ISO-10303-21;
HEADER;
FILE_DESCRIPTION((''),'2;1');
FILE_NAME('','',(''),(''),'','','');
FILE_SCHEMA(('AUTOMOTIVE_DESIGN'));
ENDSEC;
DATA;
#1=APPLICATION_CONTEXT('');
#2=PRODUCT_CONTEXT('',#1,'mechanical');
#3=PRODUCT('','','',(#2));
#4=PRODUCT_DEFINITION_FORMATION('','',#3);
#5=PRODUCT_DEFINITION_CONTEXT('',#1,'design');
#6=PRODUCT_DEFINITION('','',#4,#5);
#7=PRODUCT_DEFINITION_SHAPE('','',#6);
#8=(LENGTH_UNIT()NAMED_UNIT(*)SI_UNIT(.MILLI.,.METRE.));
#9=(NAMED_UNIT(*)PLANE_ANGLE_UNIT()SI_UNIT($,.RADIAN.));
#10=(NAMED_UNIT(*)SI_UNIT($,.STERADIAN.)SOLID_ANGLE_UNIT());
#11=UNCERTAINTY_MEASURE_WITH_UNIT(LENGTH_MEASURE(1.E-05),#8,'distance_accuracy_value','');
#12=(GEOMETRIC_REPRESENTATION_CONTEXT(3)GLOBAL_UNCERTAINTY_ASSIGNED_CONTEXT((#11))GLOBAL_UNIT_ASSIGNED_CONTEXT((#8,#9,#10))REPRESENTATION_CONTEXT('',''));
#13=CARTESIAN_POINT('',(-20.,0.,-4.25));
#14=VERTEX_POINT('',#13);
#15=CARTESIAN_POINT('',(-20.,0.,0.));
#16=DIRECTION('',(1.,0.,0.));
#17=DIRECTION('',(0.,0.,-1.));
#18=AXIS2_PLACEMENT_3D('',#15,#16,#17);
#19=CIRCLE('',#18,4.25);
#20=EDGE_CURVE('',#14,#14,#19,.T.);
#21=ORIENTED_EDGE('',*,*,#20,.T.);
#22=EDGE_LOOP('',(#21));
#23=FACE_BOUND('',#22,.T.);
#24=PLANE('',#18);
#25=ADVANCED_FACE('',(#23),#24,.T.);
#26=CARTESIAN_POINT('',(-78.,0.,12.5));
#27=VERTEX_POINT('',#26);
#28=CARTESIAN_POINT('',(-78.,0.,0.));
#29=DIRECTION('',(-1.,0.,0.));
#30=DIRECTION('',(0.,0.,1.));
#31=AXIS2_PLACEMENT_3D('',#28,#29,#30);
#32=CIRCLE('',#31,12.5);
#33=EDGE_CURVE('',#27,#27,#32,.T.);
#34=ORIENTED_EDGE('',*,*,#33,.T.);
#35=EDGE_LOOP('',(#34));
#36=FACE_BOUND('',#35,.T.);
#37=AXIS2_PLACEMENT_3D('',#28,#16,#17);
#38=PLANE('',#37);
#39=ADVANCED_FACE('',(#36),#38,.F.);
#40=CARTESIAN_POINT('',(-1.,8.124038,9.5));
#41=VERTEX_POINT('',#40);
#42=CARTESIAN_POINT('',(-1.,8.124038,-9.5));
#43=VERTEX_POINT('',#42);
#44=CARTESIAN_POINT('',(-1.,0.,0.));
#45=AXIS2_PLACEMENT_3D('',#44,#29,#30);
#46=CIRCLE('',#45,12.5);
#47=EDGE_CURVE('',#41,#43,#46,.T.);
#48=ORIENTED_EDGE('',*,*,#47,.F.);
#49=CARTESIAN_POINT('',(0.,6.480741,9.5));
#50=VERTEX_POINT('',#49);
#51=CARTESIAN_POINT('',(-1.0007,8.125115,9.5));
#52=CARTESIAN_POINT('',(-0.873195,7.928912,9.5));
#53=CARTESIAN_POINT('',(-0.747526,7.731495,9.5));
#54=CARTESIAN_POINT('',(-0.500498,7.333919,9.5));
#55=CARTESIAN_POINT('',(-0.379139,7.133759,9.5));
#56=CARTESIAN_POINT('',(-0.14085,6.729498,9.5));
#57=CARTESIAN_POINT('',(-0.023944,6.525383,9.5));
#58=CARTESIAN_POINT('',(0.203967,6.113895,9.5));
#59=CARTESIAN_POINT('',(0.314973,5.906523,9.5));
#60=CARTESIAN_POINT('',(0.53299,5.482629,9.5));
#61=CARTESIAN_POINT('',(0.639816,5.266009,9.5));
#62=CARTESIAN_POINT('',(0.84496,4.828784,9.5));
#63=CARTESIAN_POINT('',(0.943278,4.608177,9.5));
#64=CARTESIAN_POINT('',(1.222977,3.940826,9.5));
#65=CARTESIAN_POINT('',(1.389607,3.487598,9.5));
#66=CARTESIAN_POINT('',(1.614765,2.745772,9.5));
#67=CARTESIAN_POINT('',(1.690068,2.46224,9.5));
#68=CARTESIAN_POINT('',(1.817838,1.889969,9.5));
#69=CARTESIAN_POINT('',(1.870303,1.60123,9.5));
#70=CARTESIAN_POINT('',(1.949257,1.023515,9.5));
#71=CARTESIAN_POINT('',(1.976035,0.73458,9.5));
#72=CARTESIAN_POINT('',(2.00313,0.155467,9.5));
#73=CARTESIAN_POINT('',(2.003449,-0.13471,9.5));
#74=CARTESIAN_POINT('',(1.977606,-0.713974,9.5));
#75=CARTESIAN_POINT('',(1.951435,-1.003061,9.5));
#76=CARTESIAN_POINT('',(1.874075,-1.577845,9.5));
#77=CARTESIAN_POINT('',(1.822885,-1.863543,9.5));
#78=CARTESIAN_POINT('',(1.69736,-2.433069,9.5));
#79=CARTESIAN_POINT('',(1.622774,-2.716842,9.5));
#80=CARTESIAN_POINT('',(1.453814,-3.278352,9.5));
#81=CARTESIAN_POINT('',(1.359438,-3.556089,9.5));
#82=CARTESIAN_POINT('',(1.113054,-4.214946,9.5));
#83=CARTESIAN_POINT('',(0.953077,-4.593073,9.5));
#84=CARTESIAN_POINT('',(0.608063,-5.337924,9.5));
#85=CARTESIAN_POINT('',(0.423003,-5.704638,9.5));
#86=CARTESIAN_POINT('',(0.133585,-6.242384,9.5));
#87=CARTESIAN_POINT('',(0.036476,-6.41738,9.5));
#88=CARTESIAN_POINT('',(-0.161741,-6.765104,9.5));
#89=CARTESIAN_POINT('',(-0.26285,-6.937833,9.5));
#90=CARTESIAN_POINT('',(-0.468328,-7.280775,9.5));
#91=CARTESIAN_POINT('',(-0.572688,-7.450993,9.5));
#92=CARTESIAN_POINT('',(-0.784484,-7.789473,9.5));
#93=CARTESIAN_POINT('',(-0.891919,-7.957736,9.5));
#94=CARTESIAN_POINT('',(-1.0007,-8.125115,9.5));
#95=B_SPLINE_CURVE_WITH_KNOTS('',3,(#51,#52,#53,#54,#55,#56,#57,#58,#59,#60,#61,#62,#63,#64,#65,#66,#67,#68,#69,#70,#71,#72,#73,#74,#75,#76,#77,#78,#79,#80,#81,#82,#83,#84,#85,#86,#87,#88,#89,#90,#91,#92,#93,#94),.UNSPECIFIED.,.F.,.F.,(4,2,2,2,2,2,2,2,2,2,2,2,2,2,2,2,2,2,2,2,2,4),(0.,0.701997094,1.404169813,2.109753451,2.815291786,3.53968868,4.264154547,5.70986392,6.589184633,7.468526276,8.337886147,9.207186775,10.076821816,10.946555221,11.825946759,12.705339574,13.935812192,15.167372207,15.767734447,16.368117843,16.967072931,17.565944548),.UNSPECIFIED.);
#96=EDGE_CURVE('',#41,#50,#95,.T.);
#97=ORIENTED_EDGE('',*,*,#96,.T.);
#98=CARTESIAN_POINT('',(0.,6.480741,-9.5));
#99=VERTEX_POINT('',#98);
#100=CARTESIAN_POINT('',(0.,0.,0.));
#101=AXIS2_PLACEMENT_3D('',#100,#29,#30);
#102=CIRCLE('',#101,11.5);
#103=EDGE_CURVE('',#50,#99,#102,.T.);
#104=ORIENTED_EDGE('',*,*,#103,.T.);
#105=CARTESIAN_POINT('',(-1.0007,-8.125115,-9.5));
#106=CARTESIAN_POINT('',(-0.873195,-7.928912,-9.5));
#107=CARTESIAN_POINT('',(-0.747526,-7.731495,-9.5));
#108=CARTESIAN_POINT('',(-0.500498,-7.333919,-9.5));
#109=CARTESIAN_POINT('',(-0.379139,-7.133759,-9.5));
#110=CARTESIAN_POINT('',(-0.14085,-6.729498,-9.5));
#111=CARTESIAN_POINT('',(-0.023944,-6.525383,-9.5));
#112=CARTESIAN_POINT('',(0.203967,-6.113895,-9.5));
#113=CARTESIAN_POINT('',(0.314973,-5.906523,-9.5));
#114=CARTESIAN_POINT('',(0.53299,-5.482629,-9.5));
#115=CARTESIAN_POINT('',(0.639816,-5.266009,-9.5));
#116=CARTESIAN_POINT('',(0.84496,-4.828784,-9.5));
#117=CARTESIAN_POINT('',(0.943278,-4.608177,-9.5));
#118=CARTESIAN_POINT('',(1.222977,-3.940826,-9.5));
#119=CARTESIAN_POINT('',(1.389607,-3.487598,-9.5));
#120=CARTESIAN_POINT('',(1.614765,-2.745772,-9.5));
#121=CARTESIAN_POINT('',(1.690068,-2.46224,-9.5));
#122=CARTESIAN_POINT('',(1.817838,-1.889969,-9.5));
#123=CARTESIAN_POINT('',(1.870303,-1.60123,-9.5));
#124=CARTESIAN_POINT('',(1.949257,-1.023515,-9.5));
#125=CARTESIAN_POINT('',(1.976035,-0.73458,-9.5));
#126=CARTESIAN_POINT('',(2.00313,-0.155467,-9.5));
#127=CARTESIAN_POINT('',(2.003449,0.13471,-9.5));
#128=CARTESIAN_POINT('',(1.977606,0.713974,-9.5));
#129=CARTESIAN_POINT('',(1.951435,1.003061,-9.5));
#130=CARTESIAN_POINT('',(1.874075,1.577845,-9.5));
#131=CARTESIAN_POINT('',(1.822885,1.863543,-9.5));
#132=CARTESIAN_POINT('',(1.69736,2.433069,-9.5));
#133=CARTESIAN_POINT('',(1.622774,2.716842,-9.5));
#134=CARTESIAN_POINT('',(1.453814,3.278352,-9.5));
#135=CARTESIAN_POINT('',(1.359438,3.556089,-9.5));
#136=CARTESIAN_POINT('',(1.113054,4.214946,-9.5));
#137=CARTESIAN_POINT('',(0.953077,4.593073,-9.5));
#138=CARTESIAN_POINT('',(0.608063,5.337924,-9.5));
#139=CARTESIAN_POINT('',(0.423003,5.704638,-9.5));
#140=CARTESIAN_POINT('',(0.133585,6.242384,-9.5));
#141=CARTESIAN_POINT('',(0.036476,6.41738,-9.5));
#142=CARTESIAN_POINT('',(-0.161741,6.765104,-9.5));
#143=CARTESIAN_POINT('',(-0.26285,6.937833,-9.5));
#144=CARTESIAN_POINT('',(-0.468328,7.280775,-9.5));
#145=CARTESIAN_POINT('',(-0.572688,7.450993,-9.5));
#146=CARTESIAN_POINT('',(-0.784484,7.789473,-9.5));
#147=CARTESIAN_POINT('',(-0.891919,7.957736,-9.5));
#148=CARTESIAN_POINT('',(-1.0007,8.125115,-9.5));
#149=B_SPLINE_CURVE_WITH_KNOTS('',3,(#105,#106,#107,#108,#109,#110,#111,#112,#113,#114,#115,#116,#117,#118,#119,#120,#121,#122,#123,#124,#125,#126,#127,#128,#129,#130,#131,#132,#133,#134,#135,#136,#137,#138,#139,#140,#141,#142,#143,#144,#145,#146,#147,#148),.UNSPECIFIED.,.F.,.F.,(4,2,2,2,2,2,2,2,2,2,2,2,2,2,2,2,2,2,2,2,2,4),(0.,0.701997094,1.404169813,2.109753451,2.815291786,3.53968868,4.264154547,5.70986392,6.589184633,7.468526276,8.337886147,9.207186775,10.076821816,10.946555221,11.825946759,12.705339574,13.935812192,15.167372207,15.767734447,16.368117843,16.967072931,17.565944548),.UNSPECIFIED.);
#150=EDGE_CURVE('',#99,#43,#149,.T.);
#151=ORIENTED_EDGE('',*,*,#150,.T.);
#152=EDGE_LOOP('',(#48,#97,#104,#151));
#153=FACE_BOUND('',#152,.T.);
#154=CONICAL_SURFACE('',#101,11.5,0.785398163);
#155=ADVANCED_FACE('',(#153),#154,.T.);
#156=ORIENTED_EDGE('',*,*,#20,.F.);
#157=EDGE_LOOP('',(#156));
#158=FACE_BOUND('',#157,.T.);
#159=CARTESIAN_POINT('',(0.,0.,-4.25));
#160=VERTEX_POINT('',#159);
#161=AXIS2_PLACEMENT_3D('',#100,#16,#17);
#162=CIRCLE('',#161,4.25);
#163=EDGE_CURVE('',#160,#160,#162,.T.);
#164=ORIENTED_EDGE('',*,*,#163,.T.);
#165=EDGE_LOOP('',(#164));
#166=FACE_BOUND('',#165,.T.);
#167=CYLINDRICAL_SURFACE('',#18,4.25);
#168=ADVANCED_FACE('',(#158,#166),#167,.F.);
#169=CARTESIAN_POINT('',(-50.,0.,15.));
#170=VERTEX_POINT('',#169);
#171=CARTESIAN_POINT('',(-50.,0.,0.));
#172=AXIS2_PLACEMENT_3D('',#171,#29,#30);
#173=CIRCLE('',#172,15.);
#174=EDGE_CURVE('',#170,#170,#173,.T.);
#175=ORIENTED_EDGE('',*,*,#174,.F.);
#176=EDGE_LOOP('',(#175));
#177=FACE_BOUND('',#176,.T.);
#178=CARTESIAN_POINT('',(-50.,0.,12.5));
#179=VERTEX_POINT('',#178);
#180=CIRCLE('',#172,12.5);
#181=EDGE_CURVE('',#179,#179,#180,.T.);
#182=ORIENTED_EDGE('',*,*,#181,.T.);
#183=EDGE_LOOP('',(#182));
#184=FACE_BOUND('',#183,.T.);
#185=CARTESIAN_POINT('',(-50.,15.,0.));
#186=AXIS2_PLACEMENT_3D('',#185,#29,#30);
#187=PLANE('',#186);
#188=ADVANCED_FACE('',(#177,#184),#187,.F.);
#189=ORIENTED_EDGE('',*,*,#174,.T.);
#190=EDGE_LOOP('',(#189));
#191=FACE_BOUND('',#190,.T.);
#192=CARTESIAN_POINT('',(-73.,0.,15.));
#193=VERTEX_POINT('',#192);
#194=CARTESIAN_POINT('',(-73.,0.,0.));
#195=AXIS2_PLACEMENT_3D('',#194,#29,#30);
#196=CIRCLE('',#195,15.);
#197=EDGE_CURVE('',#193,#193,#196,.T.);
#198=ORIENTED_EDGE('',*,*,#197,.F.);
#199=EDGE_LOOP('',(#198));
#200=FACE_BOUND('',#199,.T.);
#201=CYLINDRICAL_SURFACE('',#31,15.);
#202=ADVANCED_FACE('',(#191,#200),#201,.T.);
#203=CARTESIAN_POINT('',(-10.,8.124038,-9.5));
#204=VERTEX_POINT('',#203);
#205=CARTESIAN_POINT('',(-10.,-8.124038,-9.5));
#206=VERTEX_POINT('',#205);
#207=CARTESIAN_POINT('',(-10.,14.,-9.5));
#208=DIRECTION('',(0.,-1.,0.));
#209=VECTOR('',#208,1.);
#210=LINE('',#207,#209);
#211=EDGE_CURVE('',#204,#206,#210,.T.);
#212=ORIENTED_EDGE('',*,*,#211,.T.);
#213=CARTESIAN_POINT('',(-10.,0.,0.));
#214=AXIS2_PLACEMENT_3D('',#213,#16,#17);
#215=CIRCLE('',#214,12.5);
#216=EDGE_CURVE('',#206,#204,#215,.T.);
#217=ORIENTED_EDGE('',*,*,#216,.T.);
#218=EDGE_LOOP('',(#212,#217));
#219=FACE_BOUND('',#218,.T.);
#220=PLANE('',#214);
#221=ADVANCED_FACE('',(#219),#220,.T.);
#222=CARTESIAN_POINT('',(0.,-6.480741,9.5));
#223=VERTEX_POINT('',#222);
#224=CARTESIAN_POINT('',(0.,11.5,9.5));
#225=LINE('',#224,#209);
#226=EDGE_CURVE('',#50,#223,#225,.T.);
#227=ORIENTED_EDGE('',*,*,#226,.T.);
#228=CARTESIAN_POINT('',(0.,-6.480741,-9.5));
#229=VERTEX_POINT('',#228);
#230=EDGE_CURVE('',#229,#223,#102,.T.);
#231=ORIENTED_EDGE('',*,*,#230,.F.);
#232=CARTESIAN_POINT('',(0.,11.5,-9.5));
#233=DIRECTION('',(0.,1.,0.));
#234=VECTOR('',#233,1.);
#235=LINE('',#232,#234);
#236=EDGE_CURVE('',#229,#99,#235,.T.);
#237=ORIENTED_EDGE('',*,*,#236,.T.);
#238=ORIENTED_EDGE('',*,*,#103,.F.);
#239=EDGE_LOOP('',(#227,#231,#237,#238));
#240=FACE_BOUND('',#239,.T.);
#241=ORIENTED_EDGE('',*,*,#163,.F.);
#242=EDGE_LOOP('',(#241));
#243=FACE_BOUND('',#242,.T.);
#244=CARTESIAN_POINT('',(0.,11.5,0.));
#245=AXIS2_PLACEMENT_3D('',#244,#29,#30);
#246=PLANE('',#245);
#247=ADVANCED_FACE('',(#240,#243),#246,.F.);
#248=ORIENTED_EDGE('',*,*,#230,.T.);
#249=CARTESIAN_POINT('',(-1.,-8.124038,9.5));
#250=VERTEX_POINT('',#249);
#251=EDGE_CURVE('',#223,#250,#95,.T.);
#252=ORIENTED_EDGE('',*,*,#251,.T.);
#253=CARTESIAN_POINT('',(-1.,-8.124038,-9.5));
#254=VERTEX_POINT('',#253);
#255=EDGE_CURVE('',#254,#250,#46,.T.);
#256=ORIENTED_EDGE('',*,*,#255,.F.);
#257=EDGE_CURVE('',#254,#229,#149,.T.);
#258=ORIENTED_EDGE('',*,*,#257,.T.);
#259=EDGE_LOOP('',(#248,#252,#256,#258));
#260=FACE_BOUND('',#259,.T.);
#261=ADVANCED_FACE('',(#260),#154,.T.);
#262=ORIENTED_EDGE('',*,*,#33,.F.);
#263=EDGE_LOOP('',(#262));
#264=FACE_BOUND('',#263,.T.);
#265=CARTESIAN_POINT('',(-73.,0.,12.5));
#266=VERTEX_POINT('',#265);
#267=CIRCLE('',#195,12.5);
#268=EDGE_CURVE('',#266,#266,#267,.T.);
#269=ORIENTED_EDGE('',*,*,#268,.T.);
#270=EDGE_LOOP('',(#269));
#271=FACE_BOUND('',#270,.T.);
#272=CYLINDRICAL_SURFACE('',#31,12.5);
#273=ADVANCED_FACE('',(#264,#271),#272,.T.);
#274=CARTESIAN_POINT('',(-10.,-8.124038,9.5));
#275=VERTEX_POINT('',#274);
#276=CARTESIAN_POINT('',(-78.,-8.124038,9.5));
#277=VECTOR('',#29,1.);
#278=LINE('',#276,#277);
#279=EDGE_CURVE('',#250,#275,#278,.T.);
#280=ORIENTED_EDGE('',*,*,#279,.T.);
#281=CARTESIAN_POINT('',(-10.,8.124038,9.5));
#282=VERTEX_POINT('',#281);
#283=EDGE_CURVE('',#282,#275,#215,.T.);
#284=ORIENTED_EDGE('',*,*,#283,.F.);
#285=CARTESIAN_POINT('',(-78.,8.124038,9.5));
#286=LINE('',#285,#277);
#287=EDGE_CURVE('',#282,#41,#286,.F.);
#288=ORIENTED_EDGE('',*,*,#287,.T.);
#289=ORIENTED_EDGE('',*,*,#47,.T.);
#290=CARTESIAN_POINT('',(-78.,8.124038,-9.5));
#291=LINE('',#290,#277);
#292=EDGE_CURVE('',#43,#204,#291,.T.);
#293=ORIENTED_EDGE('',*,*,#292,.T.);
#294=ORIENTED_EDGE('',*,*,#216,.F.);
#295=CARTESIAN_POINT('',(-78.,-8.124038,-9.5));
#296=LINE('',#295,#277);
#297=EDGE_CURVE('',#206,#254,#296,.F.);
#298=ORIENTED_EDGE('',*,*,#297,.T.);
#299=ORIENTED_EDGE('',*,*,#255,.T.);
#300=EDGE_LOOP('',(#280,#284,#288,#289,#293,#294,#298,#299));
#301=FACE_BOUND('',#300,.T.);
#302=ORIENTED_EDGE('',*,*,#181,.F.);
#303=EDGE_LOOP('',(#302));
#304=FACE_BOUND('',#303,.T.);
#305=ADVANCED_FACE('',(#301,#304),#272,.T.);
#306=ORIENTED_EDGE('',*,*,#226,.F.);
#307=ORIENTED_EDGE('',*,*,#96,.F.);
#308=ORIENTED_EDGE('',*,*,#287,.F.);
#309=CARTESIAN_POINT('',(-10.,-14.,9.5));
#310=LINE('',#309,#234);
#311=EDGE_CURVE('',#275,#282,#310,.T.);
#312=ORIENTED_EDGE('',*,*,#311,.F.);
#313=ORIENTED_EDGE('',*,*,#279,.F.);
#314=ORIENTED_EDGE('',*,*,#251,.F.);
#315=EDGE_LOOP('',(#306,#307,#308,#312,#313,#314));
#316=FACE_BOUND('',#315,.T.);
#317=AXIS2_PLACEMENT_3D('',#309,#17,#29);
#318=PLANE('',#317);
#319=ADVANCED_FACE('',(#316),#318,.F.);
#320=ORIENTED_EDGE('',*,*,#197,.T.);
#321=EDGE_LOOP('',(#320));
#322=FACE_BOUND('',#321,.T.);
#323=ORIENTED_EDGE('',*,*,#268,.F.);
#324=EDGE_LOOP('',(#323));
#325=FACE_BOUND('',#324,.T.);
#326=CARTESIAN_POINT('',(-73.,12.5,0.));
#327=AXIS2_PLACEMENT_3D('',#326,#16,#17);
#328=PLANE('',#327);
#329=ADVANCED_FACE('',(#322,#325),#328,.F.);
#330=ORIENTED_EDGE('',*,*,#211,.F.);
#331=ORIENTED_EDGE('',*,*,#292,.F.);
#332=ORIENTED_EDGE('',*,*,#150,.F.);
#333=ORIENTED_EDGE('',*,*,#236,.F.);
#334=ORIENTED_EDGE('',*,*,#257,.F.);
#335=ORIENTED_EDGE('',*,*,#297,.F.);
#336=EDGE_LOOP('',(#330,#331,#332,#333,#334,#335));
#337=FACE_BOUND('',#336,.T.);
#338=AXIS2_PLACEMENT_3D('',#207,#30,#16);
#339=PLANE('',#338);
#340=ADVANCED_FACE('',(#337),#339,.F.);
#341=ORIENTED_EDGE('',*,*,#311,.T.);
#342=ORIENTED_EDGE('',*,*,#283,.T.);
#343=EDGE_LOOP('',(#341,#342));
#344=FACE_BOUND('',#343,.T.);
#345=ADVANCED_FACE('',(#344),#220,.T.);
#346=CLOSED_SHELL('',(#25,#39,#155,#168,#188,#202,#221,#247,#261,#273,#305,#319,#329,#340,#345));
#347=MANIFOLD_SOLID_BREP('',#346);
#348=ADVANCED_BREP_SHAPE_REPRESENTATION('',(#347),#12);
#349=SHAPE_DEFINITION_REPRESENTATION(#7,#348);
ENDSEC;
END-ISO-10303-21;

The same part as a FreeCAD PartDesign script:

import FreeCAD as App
import Part
import Sketcher
Q = App.Units.Quantity

doc = App.newDocument("Part")
body = doc.addObject("PartDesign::Body", "Body")

sketch1 = body.newObject("Sketcher::SketchObject", "Sketch")
sketch1.AttachmentSupport = (doc.getObject("XY_Plane"), [""])
sketch1.MapMode = "FlatFace"
sketch1.addGeometry([
    Part.LineSegment(App.Vector(-78, 12.5, 0), App.Vector(-78, 0, 0)),
    Part.LineSegment(App.Vector(-78, 0, 0), App.Vector(0, 0, 0)),
    Part.LineSegment(App.Vector(0, 0, 0), App.Vector(0, 11.5, 0)),
    Part.LineSegment(App.Vector(0, 11.5, 0), App.Vector(-1, 12.5, 0)),
    Part.LineSegment(App.Vector(-1, 12.5, 0), App.Vector(-50, 12.5, 0)),
    Part.LineSegment(App.Vector(-50, 12.5, 0), App.Vector(-50, 15, 0)),
    Part.LineSegment(App.Vector(-50, 15, 0), App.Vector(-73, 15, 0)),
    Part.LineSegment(App.Vector(-73, 15, 0), App.Vector(-73, 12.5, 0)),
    Part.LineSegment(App.Vector(-73, 12.5, 0), App.Vector(-78, 12.5, 0)),
], False)
sketch1.addConstraint([
    Sketcher.Constraint("Coincident", 0, 2, 1, 1),
    Sketcher.Constraint("Coincident", 1, 2, 2, 1),
    Sketcher.Constraint("Coincident", 2, 2, 3, 1),
    Sketcher.Constraint("Coincident", 3, 2, 4, 1),
    Sketcher.Constraint("Coincident", 4, 2, 5, 1),
    Sketcher.Constraint("Coincident", 5, 2, 6, 1),
    Sketcher.Constraint("Coincident", 6, 2, 7, 1),
    Sketcher.Constraint("Coincident", 7, 2, 8, 1),
    Sketcher.Constraint("Coincident", 8, 2, 0, 1),
    Sketcher.Constraint("Vertical", 0),
    Sketcher.Constraint("Horizontal", 1),
    Sketcher.Constraint("Vertical", 2),
    Sketcher.Constraint("Horizontal", 4),
    Sketcher.Constraint("Vertical", 5),
    Sketcher.Constraint("Horizontal", 6),
    Sketcher.Constraint("Vertical", 7),
    Sketcher.Constraint("Horizontal", 8),
    Sketcher.Constraint("Coincident", 1, 2, -1, 1),
    Sketcher.Constraint("Horizontal", 4, 2, 7, 2),
    Sketcher.Constraint("DistanceX", 1, 1, 1, 2, 78.0),
    Sketcher.Constraint("DistanceX", 4, 2, 4, 1, 49.0),
    Sketcher.Constraint("DistanceX", 6, 2, 6, 1, 23.0),
    Sketcher.Constraint("DistanceX", 8, 2, 8, 1, 5.0),
    Sketcher.Constraint("Angle", 3, Q("135 deg")),
    Sketcher.Constraint("DistanceY", 0, 2, 0, 1, 12.5),
    Sketcher.Constraint("DistanceY", 5, 1, 5, 2, 2.5),
])
revolution = body.newObject("PartDesign::Revolution", "Revolution")
revolution.Profile = sketch1
revolution.ReferenceAxis = (sketch1, ["H_Axis"])
revolution.Angle = 360

sketch2 = body.newObject("Sketcher::SketchObject", "Sketch001")
sketch2.AttachmentSupport = (doc.getObject("YZ_Plane"), [""])
sketch2.MapMode = "FlatFace"
sketch2.addGeometry([
    Part.LineSegment(App.Vector(14, -9.5, 0), App.Vector(-14, -9.5, 0)),
    Part.LineSegment(App.Vector(-14, -9.5, 0), App.Vector(-14, -14, 0)),
    Part.LineSegment(App.Vector(-14, -14, 0), App.Vector(14, -14, 0)),
    Part.LineSegment(App.Vector(14, -14, 0), App.Vector(14, -9.5, 0)),
    Part.LineSegment(App.Vector(14, 14, 0), App.Vector(-14, 14, 0)),
    Part.LineSegment(App.Vector(-14, 14, 0), App.Vector(-14, 9.5, 0)),
    Part.LineSegment(App.Vector(-14, 9.5, 0), App.Vector(14, 9.5, 0)),
    Part.LineSegment(App.Vector(14, 9.5, 0), App.Vector(14, 14, 0)),
], False)
sketch2.addConstraint([
    Sketcher.Constraint("Coincident", 0, 2, 1, 1),
    Sketcher.Constraint("Coincident", 1, 2, 2, 1),
    Sketcher.Constraint("Coincident", 2, 2, 3, 1),
    Sketcher.Constraint("Coincident", 3, 2, 0, 1),
    Sketcher.Constraint("Coincident", 4, 2, 5, 1),
    Sketcher.Constraint("Coincident", 5, 2, 6, 1),
    Sketcher.Constraint("Coincident", 6, 2, 7, 1),
    Sketcher.Constraint("Coincident", 7, 2, 4, 1),
    Sketcher.Constraint("Horizontal", 0),
    Sketcher.Constraint("Vertical", 1),
    Sketcher.Constraint("Horizontal", 2),
    Sketcher.Constraint("Vertical", 3),
    Sketcher.Constraint("Horizontal", 4),
    Sketcher.Constraint("Vertical", 5),
    Sketcher.Constraint("Horizontal", 6),
    Sketcher.Constraint("Vertical", 7),
    Sketcher.Constraint("Symmetric", 2, 2, 4, 2, -1, 1),
    Sketcher.Constraint("Symmetric", 0, 2, 6, 2, -1, 1),
    Sketcher.Constraint("Vertical", 1, 2, 4, 2),
    Sketcher.Constraint("DistanceX", 0, 2, 0, 1, 28.0),
    Sketcher.Constraint("DistanceY", 1, 2, 1, 1, 4.5),
    Sketcher.Constraint("DistanceY", 1, 2, -1, 1, 14.0),
])
pocket1 = body.newObject("PartDesign::Pocket", "Pocket")
pocket1.Profile = sketch2
pocket1.Length = 10

sketch3 = body.newObject("Sketcher::SketchObject", "Sketch002")
sketch3.AttachmentSupport = (doc.getObject("YZ_Plane"), [""])
sketch3.MapMode = "FlatFace"
sketch3.addGeometry(Part.Circle(App.Vector(0, 0, 0), App.Vector(0, 0, 1), 4.2), False)
sketch3.addConstraint([
    Sketcher.Constraint("Coincident", 0, 3, -1, 1),
    Sketcher.Constraint("Diameter", 0, 8.5),
])
pocket2 = body.newObject("PartDesign::Pocket", "Pocket001")
pocket2.Profile = sketch3
pocket2.Length = 20

doc.recompute()
